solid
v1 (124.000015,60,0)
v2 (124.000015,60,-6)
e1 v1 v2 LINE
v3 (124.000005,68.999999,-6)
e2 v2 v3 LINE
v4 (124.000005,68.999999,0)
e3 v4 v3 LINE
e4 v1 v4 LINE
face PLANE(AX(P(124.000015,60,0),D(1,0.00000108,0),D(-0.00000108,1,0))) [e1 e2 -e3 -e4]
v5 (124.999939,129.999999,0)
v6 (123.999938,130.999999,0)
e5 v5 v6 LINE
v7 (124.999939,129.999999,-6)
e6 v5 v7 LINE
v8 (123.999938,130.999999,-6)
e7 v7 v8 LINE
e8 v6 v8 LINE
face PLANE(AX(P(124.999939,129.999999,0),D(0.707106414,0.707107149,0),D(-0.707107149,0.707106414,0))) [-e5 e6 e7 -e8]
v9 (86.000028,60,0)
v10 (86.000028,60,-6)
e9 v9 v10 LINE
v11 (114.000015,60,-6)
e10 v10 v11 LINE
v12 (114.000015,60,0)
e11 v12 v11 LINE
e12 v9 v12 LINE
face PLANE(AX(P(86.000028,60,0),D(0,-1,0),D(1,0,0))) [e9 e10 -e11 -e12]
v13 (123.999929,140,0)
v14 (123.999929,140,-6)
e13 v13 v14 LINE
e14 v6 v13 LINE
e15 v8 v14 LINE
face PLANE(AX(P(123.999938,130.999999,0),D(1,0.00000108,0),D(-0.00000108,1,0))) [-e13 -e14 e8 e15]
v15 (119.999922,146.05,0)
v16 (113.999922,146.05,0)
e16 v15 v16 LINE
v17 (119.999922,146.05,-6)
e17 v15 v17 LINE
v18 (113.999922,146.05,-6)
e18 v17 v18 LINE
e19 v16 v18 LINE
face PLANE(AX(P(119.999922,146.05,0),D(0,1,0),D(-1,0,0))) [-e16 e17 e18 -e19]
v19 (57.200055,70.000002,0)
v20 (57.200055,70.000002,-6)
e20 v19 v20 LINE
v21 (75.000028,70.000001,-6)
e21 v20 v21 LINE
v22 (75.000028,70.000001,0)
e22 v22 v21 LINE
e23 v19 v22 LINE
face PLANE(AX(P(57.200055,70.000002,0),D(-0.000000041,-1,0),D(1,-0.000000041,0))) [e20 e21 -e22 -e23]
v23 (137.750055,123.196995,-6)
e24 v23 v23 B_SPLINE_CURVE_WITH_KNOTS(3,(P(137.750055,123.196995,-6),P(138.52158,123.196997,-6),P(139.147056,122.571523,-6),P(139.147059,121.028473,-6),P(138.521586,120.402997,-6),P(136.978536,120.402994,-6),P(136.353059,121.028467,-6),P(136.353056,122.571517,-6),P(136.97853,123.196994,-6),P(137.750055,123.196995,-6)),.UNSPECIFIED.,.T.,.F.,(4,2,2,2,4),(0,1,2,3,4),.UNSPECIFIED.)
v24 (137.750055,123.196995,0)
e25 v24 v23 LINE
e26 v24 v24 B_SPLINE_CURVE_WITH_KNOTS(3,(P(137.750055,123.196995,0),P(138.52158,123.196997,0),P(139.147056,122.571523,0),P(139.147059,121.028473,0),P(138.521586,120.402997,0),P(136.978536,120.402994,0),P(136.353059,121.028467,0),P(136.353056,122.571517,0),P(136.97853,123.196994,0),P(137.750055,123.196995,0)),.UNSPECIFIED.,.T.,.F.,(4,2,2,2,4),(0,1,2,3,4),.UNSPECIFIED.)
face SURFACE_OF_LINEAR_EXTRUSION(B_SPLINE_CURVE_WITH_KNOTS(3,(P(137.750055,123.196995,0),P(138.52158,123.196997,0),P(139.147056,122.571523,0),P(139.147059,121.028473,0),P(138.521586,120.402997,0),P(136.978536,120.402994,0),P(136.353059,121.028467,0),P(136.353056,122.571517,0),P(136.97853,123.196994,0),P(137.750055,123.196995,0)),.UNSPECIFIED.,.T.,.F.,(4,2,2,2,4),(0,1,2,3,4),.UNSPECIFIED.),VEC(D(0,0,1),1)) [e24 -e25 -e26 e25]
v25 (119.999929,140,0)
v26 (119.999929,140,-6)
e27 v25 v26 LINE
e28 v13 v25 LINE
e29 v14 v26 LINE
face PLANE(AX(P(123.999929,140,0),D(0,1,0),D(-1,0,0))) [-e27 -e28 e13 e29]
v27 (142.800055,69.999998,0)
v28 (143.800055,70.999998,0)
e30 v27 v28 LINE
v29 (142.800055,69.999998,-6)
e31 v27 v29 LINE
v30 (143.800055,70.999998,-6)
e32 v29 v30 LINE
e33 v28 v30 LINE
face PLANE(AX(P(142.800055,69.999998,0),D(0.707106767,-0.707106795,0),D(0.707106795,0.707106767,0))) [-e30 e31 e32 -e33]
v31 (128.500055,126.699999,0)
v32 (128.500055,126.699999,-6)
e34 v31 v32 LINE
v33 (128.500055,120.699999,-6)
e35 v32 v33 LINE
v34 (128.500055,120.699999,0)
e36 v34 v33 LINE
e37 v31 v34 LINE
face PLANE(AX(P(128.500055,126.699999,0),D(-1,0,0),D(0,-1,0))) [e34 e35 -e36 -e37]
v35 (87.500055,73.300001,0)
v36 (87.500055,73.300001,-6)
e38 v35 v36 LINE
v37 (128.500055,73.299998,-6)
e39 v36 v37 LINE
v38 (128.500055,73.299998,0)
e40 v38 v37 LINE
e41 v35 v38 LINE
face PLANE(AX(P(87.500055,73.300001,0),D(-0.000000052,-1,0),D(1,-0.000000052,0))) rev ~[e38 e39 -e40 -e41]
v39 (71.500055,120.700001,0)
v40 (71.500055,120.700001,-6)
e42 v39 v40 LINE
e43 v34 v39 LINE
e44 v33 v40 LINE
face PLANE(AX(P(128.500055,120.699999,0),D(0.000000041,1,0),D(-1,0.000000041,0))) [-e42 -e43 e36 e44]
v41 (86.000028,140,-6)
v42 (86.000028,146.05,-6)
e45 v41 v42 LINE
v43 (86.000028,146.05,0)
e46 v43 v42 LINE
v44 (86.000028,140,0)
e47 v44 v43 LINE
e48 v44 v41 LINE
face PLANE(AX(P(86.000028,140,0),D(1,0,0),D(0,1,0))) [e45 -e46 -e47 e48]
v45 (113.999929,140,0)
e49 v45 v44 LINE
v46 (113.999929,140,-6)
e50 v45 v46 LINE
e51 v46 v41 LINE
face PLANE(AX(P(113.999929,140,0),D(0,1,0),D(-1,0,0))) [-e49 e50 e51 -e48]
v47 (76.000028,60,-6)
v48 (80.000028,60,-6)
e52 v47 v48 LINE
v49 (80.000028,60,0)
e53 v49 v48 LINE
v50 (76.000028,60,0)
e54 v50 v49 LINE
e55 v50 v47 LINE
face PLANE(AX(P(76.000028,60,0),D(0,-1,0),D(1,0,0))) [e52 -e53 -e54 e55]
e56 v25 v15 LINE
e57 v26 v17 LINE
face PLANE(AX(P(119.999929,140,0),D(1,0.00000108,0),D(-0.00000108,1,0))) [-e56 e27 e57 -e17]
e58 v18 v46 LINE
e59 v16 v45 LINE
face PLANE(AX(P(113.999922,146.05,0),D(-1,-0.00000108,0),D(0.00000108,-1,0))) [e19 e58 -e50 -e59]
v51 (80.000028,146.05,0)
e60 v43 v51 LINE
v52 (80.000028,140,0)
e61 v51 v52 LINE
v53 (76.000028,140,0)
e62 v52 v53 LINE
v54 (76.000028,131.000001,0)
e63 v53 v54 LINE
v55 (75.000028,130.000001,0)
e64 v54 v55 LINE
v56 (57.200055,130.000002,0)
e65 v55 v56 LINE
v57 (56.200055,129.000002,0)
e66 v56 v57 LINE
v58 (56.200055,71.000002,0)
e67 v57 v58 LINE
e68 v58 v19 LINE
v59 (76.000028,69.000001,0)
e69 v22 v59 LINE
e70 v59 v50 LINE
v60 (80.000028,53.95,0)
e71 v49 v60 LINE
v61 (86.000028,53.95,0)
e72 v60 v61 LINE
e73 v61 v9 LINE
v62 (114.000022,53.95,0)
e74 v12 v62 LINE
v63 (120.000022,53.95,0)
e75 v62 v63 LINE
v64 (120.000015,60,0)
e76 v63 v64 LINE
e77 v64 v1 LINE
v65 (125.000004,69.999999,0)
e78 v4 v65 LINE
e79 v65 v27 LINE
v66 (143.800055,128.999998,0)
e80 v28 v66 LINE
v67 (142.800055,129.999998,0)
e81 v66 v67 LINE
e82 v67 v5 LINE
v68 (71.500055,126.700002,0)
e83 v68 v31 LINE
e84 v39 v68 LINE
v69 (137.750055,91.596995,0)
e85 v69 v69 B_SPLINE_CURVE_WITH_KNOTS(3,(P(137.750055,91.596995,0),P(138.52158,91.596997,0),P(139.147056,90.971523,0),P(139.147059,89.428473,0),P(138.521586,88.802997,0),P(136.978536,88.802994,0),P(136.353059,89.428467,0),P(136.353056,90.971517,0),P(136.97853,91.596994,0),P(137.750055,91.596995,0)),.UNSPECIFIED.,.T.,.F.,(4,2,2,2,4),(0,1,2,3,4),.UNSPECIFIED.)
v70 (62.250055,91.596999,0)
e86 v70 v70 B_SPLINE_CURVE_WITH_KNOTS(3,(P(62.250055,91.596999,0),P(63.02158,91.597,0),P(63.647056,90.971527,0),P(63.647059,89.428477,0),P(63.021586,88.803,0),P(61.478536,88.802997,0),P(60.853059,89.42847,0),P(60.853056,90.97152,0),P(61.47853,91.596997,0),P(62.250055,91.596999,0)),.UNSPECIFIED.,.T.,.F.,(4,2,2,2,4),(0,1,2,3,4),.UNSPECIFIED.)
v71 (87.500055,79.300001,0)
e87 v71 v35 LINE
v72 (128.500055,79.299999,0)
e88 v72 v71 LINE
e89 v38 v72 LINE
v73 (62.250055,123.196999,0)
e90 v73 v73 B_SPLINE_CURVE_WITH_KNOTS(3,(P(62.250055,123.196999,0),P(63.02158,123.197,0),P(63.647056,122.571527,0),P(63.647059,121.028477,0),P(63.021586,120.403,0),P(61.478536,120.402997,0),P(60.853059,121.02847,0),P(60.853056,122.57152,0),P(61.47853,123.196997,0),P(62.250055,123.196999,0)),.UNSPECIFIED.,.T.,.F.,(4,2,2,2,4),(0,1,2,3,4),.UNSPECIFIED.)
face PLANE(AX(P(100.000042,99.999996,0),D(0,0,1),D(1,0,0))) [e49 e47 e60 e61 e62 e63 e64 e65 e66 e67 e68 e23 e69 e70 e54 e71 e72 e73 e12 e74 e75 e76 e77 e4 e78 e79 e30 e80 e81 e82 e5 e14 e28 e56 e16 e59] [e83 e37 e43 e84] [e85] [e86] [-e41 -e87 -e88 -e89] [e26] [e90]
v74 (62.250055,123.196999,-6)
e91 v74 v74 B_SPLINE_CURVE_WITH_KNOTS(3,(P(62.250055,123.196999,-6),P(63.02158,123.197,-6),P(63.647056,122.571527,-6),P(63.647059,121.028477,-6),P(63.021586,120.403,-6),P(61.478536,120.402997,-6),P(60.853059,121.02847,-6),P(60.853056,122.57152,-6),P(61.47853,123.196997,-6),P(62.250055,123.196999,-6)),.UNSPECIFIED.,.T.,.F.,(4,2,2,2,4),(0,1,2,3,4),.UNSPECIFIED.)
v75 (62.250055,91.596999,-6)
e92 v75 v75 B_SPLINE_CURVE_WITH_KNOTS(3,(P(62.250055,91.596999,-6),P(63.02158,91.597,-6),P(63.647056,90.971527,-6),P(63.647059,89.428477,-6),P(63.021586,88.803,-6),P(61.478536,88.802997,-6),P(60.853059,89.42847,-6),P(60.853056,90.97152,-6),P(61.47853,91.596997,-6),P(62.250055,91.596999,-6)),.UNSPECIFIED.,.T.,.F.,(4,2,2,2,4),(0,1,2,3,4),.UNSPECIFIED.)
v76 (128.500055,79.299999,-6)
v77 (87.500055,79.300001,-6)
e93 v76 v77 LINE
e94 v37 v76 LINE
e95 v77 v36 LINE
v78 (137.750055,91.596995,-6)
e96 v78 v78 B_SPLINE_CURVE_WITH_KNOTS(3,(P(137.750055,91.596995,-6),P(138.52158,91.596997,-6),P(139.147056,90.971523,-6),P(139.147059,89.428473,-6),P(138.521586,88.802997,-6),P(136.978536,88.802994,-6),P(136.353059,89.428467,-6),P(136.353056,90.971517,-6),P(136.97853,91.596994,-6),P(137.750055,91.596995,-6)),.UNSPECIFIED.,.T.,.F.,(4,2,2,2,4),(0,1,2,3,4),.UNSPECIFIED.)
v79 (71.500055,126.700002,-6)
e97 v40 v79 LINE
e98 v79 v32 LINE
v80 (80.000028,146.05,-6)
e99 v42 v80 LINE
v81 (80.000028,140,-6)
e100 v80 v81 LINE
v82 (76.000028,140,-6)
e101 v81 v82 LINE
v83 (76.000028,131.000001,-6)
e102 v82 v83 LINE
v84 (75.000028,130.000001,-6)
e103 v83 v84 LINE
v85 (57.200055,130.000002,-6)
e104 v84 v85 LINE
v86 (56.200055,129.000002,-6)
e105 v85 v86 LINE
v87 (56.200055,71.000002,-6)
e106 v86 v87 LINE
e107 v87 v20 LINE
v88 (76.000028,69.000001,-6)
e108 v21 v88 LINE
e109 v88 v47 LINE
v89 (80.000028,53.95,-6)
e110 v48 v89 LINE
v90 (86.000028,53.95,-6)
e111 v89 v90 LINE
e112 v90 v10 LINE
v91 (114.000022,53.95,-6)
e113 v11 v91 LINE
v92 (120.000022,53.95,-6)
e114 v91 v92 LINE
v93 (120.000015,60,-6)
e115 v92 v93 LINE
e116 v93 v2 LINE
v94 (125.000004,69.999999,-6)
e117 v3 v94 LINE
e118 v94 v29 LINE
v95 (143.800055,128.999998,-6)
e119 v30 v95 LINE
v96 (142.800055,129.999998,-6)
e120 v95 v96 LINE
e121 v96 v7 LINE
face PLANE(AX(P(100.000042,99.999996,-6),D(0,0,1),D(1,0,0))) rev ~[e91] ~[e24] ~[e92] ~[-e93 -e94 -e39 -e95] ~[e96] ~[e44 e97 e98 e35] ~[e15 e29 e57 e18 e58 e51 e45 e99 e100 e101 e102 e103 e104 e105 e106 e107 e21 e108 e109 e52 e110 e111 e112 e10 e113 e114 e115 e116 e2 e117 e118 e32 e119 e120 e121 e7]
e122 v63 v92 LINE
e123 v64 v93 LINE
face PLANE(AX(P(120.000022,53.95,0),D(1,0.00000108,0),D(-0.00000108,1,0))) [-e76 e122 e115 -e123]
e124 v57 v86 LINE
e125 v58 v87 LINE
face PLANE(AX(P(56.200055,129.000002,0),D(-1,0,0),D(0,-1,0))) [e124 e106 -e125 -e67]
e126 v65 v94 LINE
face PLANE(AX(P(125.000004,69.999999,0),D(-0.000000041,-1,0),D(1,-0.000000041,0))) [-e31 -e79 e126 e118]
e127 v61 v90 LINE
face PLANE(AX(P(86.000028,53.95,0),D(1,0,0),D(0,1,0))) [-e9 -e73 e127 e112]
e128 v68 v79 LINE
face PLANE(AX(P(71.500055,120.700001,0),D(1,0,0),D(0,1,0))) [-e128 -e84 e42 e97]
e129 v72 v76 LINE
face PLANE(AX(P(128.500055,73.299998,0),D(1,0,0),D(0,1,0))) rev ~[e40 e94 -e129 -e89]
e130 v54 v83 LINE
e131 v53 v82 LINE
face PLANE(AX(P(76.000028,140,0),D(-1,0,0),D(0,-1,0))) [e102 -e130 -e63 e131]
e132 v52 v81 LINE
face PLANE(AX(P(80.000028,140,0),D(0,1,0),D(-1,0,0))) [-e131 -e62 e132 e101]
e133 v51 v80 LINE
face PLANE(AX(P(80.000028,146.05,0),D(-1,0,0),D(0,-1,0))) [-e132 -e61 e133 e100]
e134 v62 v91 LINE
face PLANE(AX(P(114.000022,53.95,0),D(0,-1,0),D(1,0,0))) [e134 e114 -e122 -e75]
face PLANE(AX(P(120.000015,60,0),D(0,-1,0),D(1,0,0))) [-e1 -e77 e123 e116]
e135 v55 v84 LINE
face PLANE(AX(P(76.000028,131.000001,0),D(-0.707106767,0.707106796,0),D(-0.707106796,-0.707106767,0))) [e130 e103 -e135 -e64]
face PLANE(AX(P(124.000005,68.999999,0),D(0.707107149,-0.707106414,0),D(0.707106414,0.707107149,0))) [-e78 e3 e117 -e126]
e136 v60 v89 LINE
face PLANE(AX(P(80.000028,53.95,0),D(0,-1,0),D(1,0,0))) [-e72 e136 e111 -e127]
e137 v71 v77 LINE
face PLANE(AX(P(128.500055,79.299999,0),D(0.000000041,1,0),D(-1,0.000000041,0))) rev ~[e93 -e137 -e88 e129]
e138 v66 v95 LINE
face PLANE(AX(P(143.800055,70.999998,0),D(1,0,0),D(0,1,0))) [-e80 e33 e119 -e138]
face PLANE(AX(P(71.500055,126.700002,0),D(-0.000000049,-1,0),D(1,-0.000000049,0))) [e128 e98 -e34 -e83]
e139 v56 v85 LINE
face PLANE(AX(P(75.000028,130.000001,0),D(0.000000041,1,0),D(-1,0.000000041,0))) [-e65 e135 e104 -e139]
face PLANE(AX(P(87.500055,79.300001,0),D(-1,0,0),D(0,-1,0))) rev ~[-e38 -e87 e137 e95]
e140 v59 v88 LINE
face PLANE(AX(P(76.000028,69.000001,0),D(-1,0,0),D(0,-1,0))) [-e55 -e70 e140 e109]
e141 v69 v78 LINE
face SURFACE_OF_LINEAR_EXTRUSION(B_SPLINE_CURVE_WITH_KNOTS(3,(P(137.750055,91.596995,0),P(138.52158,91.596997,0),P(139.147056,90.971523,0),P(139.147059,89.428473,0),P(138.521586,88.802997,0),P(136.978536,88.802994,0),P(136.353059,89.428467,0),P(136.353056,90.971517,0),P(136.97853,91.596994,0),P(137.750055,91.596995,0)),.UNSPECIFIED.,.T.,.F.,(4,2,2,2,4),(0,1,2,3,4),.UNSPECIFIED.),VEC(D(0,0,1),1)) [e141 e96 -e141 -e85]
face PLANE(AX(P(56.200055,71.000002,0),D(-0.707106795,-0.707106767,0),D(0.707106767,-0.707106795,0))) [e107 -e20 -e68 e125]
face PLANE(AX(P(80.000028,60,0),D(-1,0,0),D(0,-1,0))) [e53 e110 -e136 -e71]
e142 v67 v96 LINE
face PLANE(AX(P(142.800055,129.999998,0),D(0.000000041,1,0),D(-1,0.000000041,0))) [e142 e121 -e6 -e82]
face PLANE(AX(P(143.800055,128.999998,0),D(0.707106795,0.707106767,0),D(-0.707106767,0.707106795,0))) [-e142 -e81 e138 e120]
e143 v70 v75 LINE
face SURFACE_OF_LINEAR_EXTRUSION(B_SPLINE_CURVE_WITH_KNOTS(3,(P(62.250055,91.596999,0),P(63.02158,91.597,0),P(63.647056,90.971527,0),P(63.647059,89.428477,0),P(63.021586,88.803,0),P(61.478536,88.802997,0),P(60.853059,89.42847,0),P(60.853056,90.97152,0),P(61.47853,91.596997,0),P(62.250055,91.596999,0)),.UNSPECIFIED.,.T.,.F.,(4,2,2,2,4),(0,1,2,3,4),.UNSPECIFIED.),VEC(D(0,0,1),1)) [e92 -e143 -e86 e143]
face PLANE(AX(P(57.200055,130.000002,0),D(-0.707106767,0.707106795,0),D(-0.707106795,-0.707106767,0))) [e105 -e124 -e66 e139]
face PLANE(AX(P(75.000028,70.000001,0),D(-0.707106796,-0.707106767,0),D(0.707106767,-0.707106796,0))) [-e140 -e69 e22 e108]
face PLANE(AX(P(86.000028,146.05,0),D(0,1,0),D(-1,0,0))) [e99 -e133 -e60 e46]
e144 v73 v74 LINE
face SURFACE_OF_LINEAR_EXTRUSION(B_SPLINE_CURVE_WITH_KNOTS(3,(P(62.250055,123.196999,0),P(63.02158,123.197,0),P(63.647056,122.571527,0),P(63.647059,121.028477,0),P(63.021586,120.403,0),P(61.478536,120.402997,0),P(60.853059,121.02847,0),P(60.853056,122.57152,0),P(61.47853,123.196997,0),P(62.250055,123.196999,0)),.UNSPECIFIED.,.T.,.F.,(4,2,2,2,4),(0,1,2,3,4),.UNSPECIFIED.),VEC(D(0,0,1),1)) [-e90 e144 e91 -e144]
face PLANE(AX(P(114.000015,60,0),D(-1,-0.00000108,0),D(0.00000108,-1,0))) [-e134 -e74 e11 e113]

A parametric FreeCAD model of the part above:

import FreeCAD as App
import Part
import Sketcher

V = App.Vector
Q = App.Units.Quantity


def add_polygon(sketch, points):
    """Adds a closed chain of lines whose ends are joined by coincident constraints."""
    first, n = sketch.GeometryCount, len(points)
    for a, b in zip(points, points[1:] + points[:1]):
        sketch.addGeometry(Part.LineSegment(App.Vector(*a, 0), App.Vector(*b, 0)), False)
    for i in range(n):
        sketch.addConstraint(Sketcher.Constraint("Coincident", first + i, 2, first + (i + 1) % n, 1))

doc = App.newDocument("Part")
body = doc.addObject("PartDesign::Body", "Body")

# Sketch on XY plane
sketch1 = body.newObject("Sketcher::SketchObject", "Sketch")
sketch1.AttachmentSupport = (doc.getObject("XY_Plane"), [""])
sketch1.MapMode = "FlatFace"
add_polygon(sketch1, [(113.999922, 146.05), (113.999929, 140), (86.000028, 140), (86.000028, 146.05), (80.000028, 146.05), (80.000028, 140), (76.000028, 140), (76.000028, 131.000001), (75.000028, 130.000001), (57.200055, 130.000002), (56.200055, 129.000002), (56.200055, 71.000002), (57.200055, 70.000002), (75.000028, 70.000001), (76.000028, 69.000001), (76.000028, 60), (80.000028, 60), (80.000028, 53.95), (86.000028, 53.95), (86.000028, 60), (114.000015, 60), (114.000022, 53.95), (120.000022, 53.95), (120.000015, 60), (124.000015, 60), (124.000005, 68.999999), (125.000004, 69.999999), (142.800055, 69.999998), (143.800055, 70.999998), (143.800055, 128.999998), (142.800055, 129.999998), (124.999939, 129.999999), (123.999938, 130.999999), (123.999929, 140), (119.999929, 140), (119.999922, 146.05)])  # lines 0-35
sketch1.addGeometry(Part.BSplineCurve([V(62.250055, 91.596999, 0), V(63.02158, 91.597, 0), V(63.647056, 90.971527, 0), V(63.647059, 89.428477, 0), V(63.021586, 88.803, 0), V(61.478536, 88.802997, 0), V(60.853059, 89.42847, 0), V(60.853056, 90.97152, 0), V(61.47853, 91.596997, 0), V(62.250055, 91.596999, 0)], [4, 2, 2, 2, 4], [0, 1, 2, 3, 4], False, 3, [1, 1, 1, 1, 1, 1, 1, 1, 1, 1], False), False)  # 36
add_polygon(sketch1, [(128.500055, 73.299998), (87.500055, 73.300001), (87.500055, 79.300001), (128.500055, 79.299999)])  # lines 37-40
sketch1.addGeometry(Part.BSplineCurve([V(137.750055, 91.596995, 0), V(138.52158, 91.596997, 0), V(139.147056, 90.971523, 0), V(139.147059, 89.428473, 0), V(138.521586, 88.802997, 0), V(136.978536, 88.802994, 0), V(136.353059, 89.428467, 0), V(136.353056, 90.971517, 0), V(136.97853, 91.596994, 0), V(137.750055, 91.596995, 0)], [4, 2, 2, 2, 4], [0, 1, 2, 3, 4], False, 3, [1, 1, 1, 1, 1, 1, 1, 1, 1, 1], False), False)  # 41
sketch1.addGeometry(Part.BSplineCurve([V(62.250055, 123.196999, 0), V(63.02158, 123.197, 0), V(63.647056, 122.571527, 0), V(63.647059, 121.028477, 0), V(63.021586, 120.403, 0), V(61.478536, 120.402997, 0), V(60.853059, 121.02847, 0), V(60.853056, 122.57152, 0), V(61.47853, 123.196997, 0), V(62.250055, 123.196999, 0)], [4, 2, 2, 2, 4], [0, 1, 2, 3, 4], False, 3, [1, 1, 1, 1, 1, 1, 1, 1, 1, 1], False), False)  # 42
add_polygon(sketch1, [(71.500055, 120.700001), (71.500055, 126.700002), (128.500055, 126.699999), (128.500055, 120.699999)])  # lines 43-46
sketch1.addGeometry(Part.BSplineCurve([V(137.750055, 123.196995, 0), V(138.52158, 123.196997, 0), V(139.147056, 122.571523, 0), V(139.147059, 121.028473, 0), V(138.521586, 120.402997, 0), V(136.978536, 120.402994, 0), V(136.353059, 121.028467, 0), V(136.353056, 122.571517, 0), V(136.97853, 123.196994, 0), V(137.750055, 123.196995, 0)], [4, 2, 2, 2, 4], [0, 1, 2, 3, 4], False, 3, [1, 1, 1, 1, 1, 1, 1, 1, 1, 1], False), False)  # 47
sketch1.addConstraint([
    Sketcher.Constraint("Block", 36),
    Sketcher.Constraint("Block", 41),
    Sketcher.Constraint("Block", 42),
    Sketcher.Constraint("Block", 47),
    Sketcher.Constraint("Horizontal", 1),
    Sketcher.Constraint("Vertical", 2),
    Sketcher.Constraint("Horizontal", 3),
    Sketcher.Constraint("Vertical", 4),
    Sketcher.Constraint("Horizontal", 5),
    Sketcher.Constraint("Vertical", 6),
    Sketcher.Constraint("Horizontal", 8),
    Sketcher.Constraint("Vertical", 10),
    Sketcher.Constraint("Horizontal", 12),
    Sketcher.Constraint("Vertical", 14),
    Sketcher.Constraint("Horizontal", 15),
    Sketcher.Constraint("Vertical", 16),
    Sketcher.Constraint("Horizontal", 17),
    Sketcher.Constraint("Vertical", 18),
    Sketcher.Constraint("Horizontal", 19),
    Sketcher.Constraint("Horizontal", 21),
    Sketcher.Constraint("Horizontal", 23),
    Sketcher.Constraint("Horizontal", 26),
    Sketcher.Constraint("Vertical", 28),
    Sketcher.Constraint("Horizontal", 30),
    Sketcher.Constraint("Horizontal", 33),
    Sketcher.Constraint("Horizontal", 35),
    Sketcher.Constraint("Vertical", 38),
    Sketcher.Constraint("Horizontal", 39),
    Sketcher.Constraint("Vertical", 40),
    Sketcher.Constraint("Vertical", 43),
    Sketcher.Constraint("Vertical", 45),
    Sketcher.Constraint("Parallel", 7, 9),
    Sketcher.Constraint("Perpendicular", 9, 11),
    Sketcher.Constraint("Parallel", 11, 13),
    Sketcher.Constraint("Parallel", 0, 20),
    Sketcher.Constraint("Parallel", 20, 22),
    Sketcher.Constraint("Parallel", 22, 24),
    Sketcher.Constraint("Perpendicular", 13, 25),
    Sketcher.Constraint("Parallel", 25, 27),
    Sketcher.Constraint("Perpendicular", 27, 29),
    Sketcher.Constraint("Parallel", 29, 31),
    Sketcher.Constraint("Parallel", 24, 32),
    Sketcher.Constraint("Parallel", 32, 34),
    Sketcher.Constraint("Perpendicular", 34, 37),
    Sketcher.Constraint("Parallel", 37, 44),
    Sketcher.Constraint("Parallel", 44, 46),
    Sketcher.Constraint("Horizontal", 1, 2, 4, 2),
    Sketcher.Constraint("Horizontal", 15, 2, 18, 2),
    Sketcher.Constraint("Horizontal", 17, 2, 20, 2),
    Sketcher.Constraint("Horizontal", 19, 2, 22, 2),
    Sketcher.Constraint("Horizontal", 13, 2, 24, 2),
    Sketcher.Constraint("Horizontal", 6, 2, 31, 2),
    Sketcher.Constraint("Horizontal", 5, 2, 32, 2),
    Sketcher.Constraint("Horizontal", 3, 2, 34, 2),
    Sketcher.Constraint("Vertical", 8, 2, 11, 2),
    Sketcher.Constraint("Vertical", 7, 2, 12, 2),
    Sketcher.Constraint("Vertical", 6, 2, 13, 2),
    Sketcher.Constraint("Vertical", 4, 2, 15, 2),
    Sketcher.Constraint("Vertical", 2, 2, 17, 2),
    Sketcher.Constraint("Vertical", 26, 2, 29, 2),
    Sketcher.Constraint("Vertical", 40, 2, 44, 2),
    Sketcher.Constraint("Equal", 17, 21),
    Sketcher.Constraint("Equal", 15, 23),
    Sketcher.Constraint("Equal", 23, 33),
    Sketcher.Constraint("Equal", 21, 35),
    Sketcher.Constraint("Equal", 6, 14),
    Sketcher.Constraint("Equal", 4, 16),
    Sketcher.Constraint("Equal", 10, 28),
    Sketcher.Constraint("Equal", 35, 38),
    Sketcher.Constraint("Equal", 38, 40),
    Sketcher.Constraint("Equal", 40, 43),
    Sketcher.Constraint("Equal", 7, 9),
    Sketcher.Constraint("Equal", 9, 11),
    Sketcher.Constraint("Equal", 13, 25),
    Sketcher.Constraint("Equal", 25, 27),
    Sketcher.Constraint("DistanceX", 3, 2, 3, 1, Q("6 mm")),
    Sketcher.Constraint("DistanceX", 5, 2, 5, 1, Q("4 mm")),
    Sketcher.Constraint("DistanceX", 39, 1, 39, 2, Q("41 mm")),
    Sketcher.Constraint("DistanceY", 6, 2, 6, 1, Q("8.999999 mm")),
    Sketcher.Constraint("DistanceY", 10, 2, 10, 1, Q("58 mm")),
    Sketcher.Constraint("Distance", 44, Q("57 mm")),
    Sketcher.Constraint("DistanceY", -1, 1, 0, 2, Q("140 mm")),
    Sketcher.Constraint("DistanceY", -1, 1, 7, 2, Q("130.000001 mm")),
    Sketcher.Constraint("DistanceY", 2, 1, 2, 2, Q("6.05 mm")),
    Sketcher.Constraint("DistanceY", -1, 1, 37, 2, Q("73.300001 mm")),
    Sketcher.Constraint("DistanceY", -1, 1, 43, 2, Q("126.700002 mm")),
    Sketcher.Constraint("DistanceX", 39, 2, 26, 2, Q("14.3 mm")),
    Sketcher.Constraint("DistanceX", 8, 2, 43, 2, Q("14.3 mm")),
    Sketcher.Constraint("DistanceX", 1, 2, 1, 1, Q("27.999901 mm")),
    Sketcher.Constraint("DistanceX", 26, 1, 26, 2, Q("17.80005 mm")),
    Sketcher.Constraint("DistanceX", 8, 2, 8, 1, Q("17.799973 mm")),
    Sketcher.Constraint("DistanceX", -1, 1, 0, 2, Q("113.999929 mm")),
])
pad1 = body.newObject("PartDesign::Pad", "Pad")
pad1.Profile = sketch1
pad1.Length = 6
pad1.Reversed = True

doc.recompute()
